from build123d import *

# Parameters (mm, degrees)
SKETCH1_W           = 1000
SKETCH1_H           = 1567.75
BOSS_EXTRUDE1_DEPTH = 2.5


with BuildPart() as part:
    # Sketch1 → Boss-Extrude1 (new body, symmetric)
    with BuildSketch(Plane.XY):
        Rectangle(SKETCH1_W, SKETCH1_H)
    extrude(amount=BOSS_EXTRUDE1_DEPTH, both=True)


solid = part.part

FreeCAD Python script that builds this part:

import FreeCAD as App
import Part
import Sketcher
Q = App.Units.Quantity


def add_polygon(sketch, points):
    """Adds a closed chain of lines whose ends are joined by coincident constraints."""
    first, n = sketch.GeometryCount, len(points)
    for a, b in zip(points, points[1:] + points[:1]):
        sketch.addGeometry(Part.LineSegment(App.Vector(*a, 0), App.Vector(*b, 0)), False)
    for i in range(n):
        sketch.addConstraint(Sketcher.Constraint("Coincident", first + i, 2, first + (i + 1) % n, 1))

doc = App.newDocument("Part")
body = doc.addObject("PartDesign::Body", "Body")

# Sketch on XY plane
sketch1 = body.newObject("Sketcher::SketchObject", "Sketch")
sketch1.AttachmentSupport = (doc.getObject("XY_Plane"), [""])
sketch1.MapMode = "FlatFace"
add_polygon(sketch1, [(-500, 784), (-500, -784), (500, -784), (500, 784)])  # lines 0-3
sketch1.addConstraint([
    Sketcher.Constraint("Vertical", 0),
    Sketcher.Constraint("Horizontal", 1),
    Sketcher.Constraint("Vertical", 2),
    Sketcher.Constraint("Horizontal", 3),
    Sketcher.Constraint("Symmetric", 0, 2, 2, 2, -1, 1),
    Sketcher.Constraint("DistanceX", 1, 1, 1, 2, Q("1000 mm")),
    Sketcher.Constraint("DistanceY", 0, 2, 0, 1, Q("1567.75 mm")),
])
pad1 = body.newObject("PartDesign::Pad", "Pad")
pad1.Profile = sketch1
pad1.Length = 5
pad1.Midplane = True

doc.recompute()
